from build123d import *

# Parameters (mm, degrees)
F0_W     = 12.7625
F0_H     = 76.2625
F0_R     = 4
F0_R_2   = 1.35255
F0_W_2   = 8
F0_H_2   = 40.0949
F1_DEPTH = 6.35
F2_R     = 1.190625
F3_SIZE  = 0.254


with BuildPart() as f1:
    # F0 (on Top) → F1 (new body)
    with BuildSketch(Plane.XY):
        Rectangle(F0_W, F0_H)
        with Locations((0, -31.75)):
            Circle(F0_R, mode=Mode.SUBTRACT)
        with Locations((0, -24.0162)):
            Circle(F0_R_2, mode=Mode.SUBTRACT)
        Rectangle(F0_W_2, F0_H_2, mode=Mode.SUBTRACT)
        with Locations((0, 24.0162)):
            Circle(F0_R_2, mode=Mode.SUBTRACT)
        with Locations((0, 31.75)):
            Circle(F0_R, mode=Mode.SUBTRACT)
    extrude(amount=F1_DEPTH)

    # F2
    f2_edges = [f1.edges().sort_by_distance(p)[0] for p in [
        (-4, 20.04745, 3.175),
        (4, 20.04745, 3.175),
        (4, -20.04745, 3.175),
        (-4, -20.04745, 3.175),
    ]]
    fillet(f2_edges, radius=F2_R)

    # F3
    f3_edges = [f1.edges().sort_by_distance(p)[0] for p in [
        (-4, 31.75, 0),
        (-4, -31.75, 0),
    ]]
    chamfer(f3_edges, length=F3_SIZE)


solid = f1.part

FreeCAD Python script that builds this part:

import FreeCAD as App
import Part
import Sketcher

V = App.Vector
Q = App.Units.Quantity


def edges_at(feature, points):
    """Names of the edges that pass closest to the given points."""
    edges = feature.Shape.Edges
    near = lambda p: min(range(len(edges)), key=lambda i: edges[i].distToShape(Part.Vertex(*p))[0])
    return sorted({f"Edge{near(p) + 1}" for p in points})

doc = App.newDocument("Part")
params = doc.addObject("Spreadsheet::Sheet", "Params")
for row, (alias, value) in enumerate([
    ("pad1_length", "0.25 in"),
    ("fillet_radius", "0.046875 in"),
    ("chamfer_size", "0.01 in"),
], start=1):
    params.set(f"A{row}", alias)
    params.set(f"B{row}", "=" + value)
    params.setAlias(f"B{row}", alias)

body = doc.addObject("PartDesign::Body", "Body")

sketch1 = body.newObject("Sketcher::SketchObject", "Sketch")
sketch1.AttachmentSupport = (doc.getObject("XY_Plane"), [""])
sketch1.MapMode = "FlatFace"
sketch1.addGeometry([
    Part.LineSegment(V(-6.4, 38.1, 0), V(-6.4, -38.1, 0)),
    Part.LineSegment(V(-6.4, -38.1, 0), V(6.4, -38.1, 0)),
    Part.LineSegment(V(6.4, -38.1, 0), V(6.4, 38.1, 0)),
    Part.LineSegment(V(6.4, 38.1, 0), V(-6.4, 38.1, 0)),
    Part.Circle(V(0, -31.8, 0), V(0, 0, 1), 4),
    Part.Circle(V(0, -24, 0), V(0, 0, 1), 1.4),
    Part.LineSegment(V(4, -20, 0), V(-4, -20, 0)),
    Part.LineSegment(V(-4, -20, 0), V(-4, 20, 0)),
    Part.LineSegment(V(-4, 20, 0), V(4, 20, 0)),
    Part.LineSegment(V(4, 20, 0), V(4, -20, 0)),
    Part.Circle(V(0, 24, 0), V(0, 0, 1), 1.4),
    Part.Circle(V(0, 31.8, 0), V(0, 0, 1), 4),
], False)
sketch1.addConstraint([
    Sketcher.Constraint("Coincident", 0, 2, 1, 1),
    Sketcher.Constraint("Coincident", 1, 2, 2, 1),
    Sketcher.Constraint("Coincident", 2, 2, 3, 1),
    Sketcher.Constraint("Coincident", 3, 2, 0, 1),
    Sketcher.Constraint("Coincident", 6, 2, 7, 1),
    Sketcher.Constraint("Coincident", 7, 2, 8, 1),
    Sketcher.Constraint("Coincident", 8, 2, 9, 1),
    Sketcher.Constraint("Coincident", 9, 2, 6, 1),
    Sketcher.Constraint("Vertical", 0),
    Sketcher.Constraint("Horizontal", 1),
    Sketcher.Constraint("Vertical", 2),
    Sketcher.Constraint("Horizontal", 3),
    Sketcher.Constraint("Horizontal", 6),
    Sketcher.Constraint("Vertical", 7),
    Sketcher.Constraint("Horizontal", 8),
    Sketcher.Constraint("Vertical", 9),
    Sketcher.Constraint("Equal", 5, 10),
    Sketcher.Constraint("Equal", 4, 11),
    Sketcher.Constraint("Symmetric", 5, 3, 10, 3, -1, 1),
    Sketcher.Constraint("Symmetric", 4, 3, 11, 3, -1, 1),
    Sketcher.Constraint("Symmetric", 0, 2, 2, 2, -1, 1),
    Sketcher.Constraint("Symmetric", 6, 2, 8, 2, -1, 1),
    Sketcher.Constraint("PointOnObject", 4, 3, -2),
    Sketcher.Constraint("PointOnObject", 5, 3, -2),
    Sketcher.Constraint("Diameter", 5, Q("0.1065 in")),
    Sketcher.Constraint("DistanceY", 4, 3, 11, 3, Q("2.5 in")),
    Sketcher.Constraint("Diameter", 4, 8.0),
    Sketcher.Constraint("DistanceY", 5, 3, 6, 2, Q("0.15625 in")),
    Sketcher.Constraint("DistanceX", 0, 2, 6, 2, Q("0.09375 in")),
    Sketcher.Constraint("DistanceX", 1, 1, 1, 2, 12.7625),
    Sketcher.Constraint("DistanceY", 0, 2, 0, 1, 76.2625),
    Sketcher.Constraint("DistanceY", 7, 1, 7, 2, 40.0949),
])
pad1 = body.newObject("PartDesign::Pad", "Pad")
pad1.Profile = sketch1
pad1.setExpression("Length", "Params.pad1_length")
doc.recompute()

fillet = body.newObject("PartDesign::Fillet", "Fillet")
fillet.Base = (pad1, edges_at(pad1, [
    (-4, 20.047, 3.175),
    (4, 20.047, 3.175),
    (4, -20.047, 3.175),
    (-4, -20.047, 3.175),
]))
fillet.setExpression("Radius", "Params.fillet_radius")
doc.recompute()

chamfer = body.newObject("PartDesign::Chamfer", "Chamfer")
chamfer.Base = (fillet, edges_at(fillet, [(-4, 31.75, 0), (-4, -31.75, 0)]))
chamfer.setExpression("Size", "Params.chamfer_size")

doc.recompute()
